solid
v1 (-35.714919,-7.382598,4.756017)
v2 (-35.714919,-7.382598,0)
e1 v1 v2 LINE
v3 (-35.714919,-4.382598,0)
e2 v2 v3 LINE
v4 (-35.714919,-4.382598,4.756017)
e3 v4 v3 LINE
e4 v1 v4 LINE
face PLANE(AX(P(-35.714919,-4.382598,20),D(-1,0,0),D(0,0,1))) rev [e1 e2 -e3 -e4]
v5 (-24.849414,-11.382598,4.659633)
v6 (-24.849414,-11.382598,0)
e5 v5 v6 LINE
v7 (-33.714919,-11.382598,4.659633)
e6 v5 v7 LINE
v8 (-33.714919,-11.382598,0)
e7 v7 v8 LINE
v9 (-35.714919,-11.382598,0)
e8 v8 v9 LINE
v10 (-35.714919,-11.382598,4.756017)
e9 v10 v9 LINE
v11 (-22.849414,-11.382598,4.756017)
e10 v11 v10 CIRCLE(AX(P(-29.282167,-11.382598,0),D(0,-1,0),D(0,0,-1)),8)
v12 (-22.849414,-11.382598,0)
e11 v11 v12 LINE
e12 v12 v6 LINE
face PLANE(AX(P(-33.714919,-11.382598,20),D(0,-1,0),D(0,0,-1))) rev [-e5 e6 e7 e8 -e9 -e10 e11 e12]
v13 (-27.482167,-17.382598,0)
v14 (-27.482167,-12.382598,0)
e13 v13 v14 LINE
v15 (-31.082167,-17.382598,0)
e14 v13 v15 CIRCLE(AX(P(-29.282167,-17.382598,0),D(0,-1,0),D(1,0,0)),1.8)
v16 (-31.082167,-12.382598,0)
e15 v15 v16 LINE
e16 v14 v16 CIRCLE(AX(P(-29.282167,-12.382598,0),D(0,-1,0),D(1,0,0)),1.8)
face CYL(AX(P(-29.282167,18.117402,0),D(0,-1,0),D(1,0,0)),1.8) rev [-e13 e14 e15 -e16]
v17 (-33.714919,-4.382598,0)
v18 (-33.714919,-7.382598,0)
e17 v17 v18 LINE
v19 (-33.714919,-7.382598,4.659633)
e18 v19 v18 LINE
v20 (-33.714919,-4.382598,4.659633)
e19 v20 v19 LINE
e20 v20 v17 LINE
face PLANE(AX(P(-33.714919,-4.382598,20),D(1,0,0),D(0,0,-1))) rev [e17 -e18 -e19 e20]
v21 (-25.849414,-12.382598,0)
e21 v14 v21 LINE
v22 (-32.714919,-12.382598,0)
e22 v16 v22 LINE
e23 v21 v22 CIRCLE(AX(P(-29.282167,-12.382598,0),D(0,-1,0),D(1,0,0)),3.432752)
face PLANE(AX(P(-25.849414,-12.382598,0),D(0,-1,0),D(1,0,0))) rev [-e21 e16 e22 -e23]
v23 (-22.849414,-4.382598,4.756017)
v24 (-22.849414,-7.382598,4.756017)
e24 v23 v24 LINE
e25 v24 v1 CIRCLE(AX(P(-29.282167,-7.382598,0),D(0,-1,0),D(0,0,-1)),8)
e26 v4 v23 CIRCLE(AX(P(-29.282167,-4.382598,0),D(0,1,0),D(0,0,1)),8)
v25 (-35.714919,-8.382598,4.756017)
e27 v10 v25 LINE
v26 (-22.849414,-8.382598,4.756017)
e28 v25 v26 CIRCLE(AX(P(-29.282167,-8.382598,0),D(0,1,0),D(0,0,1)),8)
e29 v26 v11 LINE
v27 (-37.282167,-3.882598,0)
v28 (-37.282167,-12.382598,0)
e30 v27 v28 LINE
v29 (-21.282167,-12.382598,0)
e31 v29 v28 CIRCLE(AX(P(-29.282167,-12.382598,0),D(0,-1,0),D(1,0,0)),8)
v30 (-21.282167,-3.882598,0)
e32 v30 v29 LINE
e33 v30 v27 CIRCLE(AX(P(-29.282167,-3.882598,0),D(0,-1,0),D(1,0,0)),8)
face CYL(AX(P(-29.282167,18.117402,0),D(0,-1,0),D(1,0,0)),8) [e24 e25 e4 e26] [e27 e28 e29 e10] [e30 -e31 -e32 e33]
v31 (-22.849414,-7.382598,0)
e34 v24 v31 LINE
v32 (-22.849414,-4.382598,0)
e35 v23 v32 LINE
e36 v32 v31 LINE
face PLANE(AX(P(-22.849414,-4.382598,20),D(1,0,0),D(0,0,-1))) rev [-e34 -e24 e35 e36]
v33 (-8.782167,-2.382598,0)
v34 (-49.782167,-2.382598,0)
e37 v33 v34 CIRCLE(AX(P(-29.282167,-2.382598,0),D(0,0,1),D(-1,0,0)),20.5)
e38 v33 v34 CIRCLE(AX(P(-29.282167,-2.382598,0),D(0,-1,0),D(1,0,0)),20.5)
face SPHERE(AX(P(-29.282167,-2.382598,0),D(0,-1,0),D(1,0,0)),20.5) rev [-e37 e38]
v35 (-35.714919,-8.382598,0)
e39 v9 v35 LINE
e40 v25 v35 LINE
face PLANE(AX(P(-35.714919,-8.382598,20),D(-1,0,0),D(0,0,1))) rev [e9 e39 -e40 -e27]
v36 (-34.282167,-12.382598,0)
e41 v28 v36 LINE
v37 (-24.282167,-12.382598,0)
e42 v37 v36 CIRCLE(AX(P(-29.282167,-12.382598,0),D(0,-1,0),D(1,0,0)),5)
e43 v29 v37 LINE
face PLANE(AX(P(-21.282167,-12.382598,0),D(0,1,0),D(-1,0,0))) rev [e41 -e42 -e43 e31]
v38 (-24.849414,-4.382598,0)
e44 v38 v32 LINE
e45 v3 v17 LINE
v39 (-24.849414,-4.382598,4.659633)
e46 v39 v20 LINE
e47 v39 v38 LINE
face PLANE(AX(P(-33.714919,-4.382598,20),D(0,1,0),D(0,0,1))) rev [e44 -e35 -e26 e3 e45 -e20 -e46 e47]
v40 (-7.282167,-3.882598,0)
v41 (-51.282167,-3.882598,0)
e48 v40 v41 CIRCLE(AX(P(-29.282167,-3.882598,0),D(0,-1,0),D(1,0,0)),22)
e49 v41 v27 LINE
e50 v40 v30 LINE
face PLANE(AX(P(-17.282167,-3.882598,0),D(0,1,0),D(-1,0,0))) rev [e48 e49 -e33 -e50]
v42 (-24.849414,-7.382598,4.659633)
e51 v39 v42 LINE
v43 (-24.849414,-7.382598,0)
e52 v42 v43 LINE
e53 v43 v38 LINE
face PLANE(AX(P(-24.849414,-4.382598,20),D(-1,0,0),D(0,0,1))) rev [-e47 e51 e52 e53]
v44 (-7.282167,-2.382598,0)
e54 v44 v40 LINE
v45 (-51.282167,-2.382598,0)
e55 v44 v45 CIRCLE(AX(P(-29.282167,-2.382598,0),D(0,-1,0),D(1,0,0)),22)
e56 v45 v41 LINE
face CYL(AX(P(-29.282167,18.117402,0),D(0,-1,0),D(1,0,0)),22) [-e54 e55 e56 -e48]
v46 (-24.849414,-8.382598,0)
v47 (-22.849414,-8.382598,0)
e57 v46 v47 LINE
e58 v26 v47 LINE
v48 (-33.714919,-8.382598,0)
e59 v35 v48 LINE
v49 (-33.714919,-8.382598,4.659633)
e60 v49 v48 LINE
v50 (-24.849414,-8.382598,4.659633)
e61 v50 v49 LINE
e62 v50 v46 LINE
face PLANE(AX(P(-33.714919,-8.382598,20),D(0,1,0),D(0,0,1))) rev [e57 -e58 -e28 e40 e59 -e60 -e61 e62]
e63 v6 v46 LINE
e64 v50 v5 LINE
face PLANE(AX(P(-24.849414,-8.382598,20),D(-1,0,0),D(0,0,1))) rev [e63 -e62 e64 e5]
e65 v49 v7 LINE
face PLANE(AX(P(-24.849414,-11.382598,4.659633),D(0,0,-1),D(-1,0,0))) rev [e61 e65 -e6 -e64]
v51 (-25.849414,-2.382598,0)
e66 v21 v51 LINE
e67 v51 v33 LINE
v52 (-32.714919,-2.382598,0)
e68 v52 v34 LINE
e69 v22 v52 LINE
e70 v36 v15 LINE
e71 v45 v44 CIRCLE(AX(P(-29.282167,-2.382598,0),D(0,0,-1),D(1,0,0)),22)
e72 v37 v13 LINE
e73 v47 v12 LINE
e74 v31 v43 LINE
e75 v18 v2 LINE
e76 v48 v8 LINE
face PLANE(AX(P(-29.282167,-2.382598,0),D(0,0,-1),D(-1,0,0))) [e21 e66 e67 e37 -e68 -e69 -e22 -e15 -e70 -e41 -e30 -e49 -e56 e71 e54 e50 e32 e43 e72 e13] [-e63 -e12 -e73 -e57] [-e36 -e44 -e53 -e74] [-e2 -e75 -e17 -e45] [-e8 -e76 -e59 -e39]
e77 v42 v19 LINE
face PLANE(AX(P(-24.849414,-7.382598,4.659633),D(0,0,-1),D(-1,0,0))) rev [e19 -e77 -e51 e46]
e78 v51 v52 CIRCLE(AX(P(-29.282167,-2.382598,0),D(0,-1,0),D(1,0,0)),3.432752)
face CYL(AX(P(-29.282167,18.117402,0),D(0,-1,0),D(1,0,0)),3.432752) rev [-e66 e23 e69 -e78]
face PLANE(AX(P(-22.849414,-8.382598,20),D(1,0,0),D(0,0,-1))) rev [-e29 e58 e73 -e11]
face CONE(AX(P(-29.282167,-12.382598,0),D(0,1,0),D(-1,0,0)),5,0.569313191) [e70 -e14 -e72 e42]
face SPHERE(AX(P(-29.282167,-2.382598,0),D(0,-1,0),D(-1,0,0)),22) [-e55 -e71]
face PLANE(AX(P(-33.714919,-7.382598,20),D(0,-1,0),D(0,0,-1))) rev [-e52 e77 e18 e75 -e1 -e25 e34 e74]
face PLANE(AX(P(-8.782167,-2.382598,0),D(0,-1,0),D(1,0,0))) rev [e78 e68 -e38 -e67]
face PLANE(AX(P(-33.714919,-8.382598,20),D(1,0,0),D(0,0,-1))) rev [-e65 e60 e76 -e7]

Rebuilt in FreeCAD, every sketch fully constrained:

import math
import FreeCAD as App
import Part
import Sketcher

V = App.Vector


def add_polygon(sketch, points):
    """Adds a closed chain of lines whose ends are joined by coincident constraints."""
    first, n = sketch.GeometryCount, len(points)
    for a, b in zip(points, points[1:] + points[:1]):
        sketch.addGeometry(Part.LineSegment(App.Vector(*a, 0), App.Vector(*b, 0)), False)
    for i in range(n):
        sketch.addConstraint(Sketcher.Constraint("Coincident", first + i, 2, first + (i + 1) % n, 1))

doc = App.newDocument("Part")
params = doc.addObject("Spreadsheet::Sheet", "Params")
for row, (alias, value) in enumerate([
    ("sketch1_radius", "22 mm"),
    ("sketch1_radius2", "20.5 mm"),
    ("sketch1_width", "14 mm"),
    ("sketch1_width2", "3 mm"),
    ("sketch1_height", "5 mm"),
    ("revolution_angle", "180 deg"),
    ("sketch2_width", "2 mm"),
    ("sketch2_height", "3 mm"),
    ("pocket1_length", "20 mm"),
    ("sketch3_width", "3 mm"),
    ("sketch3_height", "5 mm"),
    ("pocket2_length", "8.865505 mm"),
], start=1):
    params.set(f"A{row}", alias)
    params.set(f"B{row}", "=" + value)
    params.setAlias(f"B{row}", alias)

body = doc.addObject("PartDesign::Body", "Body")

sketch1 = body.newObject("Sketcher::SketchObject", "Sketch")
sketch1.AttachmentSupport = (doc.getObject("XY_Plane"), [""])
sketch1.MapMode = "FlatFace"
sketch1.addGeometry([
    Part.LineSegment(V(-32.714919, -2.382598, 0), V(-49.782167, -2.382598, 0)),
    Part.ArcOfCircle(Part.Circle(V(-29.282167, -2.382598, 0), V(0, 0, 1), 20.5), math.radians(90), math.radians(180)),
    Part.LineSegment(V(-29.282167, 18.117402, 0), V(-29.282167, 19.617402, 0)),
    Part.ArcOfCircle(Part.Circle(V(-29.282167, -2.382598, 0), V(0, 0, 1), 22), math.radians(90), math.radians(180)),
    Part.LineSegment(V(-51.282167, -2.382598, 0), V(-51.282167, -3.882598, 0)),
    Part.LineSegment(V(-51.282167, -3.882598, 0), V(-37.282167, -3.882598, 0)),
    Part.LineSegment(V(-37.282167, -3.882598, 0), V(-37.282167, -12.382598, 0)),
    Part.LineSegment(V(-37.282167, -12.382598, 0), V(-34.282167, -12.382598, 0)),
    Part.LineSegment(V(-34.282167, -12.382598, 0), V(-31.082167, -17.382598, 0)),
    Part.LineSegment(V(-31.082167, -17.382598, 0), V(-31.082167, -12.382598, 0)),
    Part.LineSegment(V(-31.082167, -12.382598, 0), V(-32.714919, -12.382598, 0)),
    Part.LineSegment(V(-32.714919, -12.382598, 0), V(-32.714919, -2.382598, 0)),
], False)
sketch1.addGeometry(Part.LineSegment(V(-29.282167, -17.382598, 0), V(-29.282167, 19.617402, 0)), True)
sketch1.addConstraint([
    Sketcher.Constraint("Coincident", 0, 2, 1, 2),
    Sketcher.Constraint("Coincident", 1, 1, 2, 1),
    Sketcher.Constraint("Coincident", 2, 2, 3, 1),
    Sketcher.Constraint("Tangent", 3, 2, 4, 1),
    Sketcher.Constraint("Coincident", 4, 2, 5, 1),
    Sketcher.Constraint("Coincident", 5, 2, 6, 1),
    Sketcher.Constraint("Coincident", 6, 2, 7, 1),
    Sketcher.Constraint("Coincident", 7, 2, 8, 1),
    Sketcher.Constraint("Coincident", 8, 2, 9, 1),
    Sketcher.Constraint("Coincident", 9, 2, 10, 1),
    Sketcher.Constraint("Coincident", 10, 2, 11, 1),
    Sketcher.Constraint("Coincident", 11, 2, 0, 1),
    Sketcher.Constraint("Horizontal", 0),
    Sketcher.Constraint("Vertical", 2),
    Sketcher.Constraint("Vertical", 4),
    Sketcher.Constraint("Horizontal", 5),
    Sketcher.Constraint("Vertical", 6),
    Sketcher.Constraint("Horizontal", 7),
    Sketcher.Constraint("Vertical", 9),
    Sketcher.Constraint("Horizontal", 10),
    Sketcher.Constraint("Vertical", 11),
    Sketcher.Constraint("Vertical", 12),
    Sketcher.Constraint("Coincident", 3, 3, 1, 3),
    Sketcher.Constraint("Coincident", 12, 2, 2, 2),
    Sketcher.Constraint("Horizontal", 3, 3, 0, 2),
    Sketcher.Constraint("Horizontal", 7, 2, 9, 2),
    Sketcher.Constraint("Horizontal", 8, 2, 12, 1),
    Sketcher.Constraint("Vertical", 3, 3, 1, 1),
    Sketcher.Constraint("Equal", 2, 4),
    Sketcher.Constraint("Radius", 3, 22.0),
    Sketcher.Constraint("Radius", 1, 20.5),
    Sketcher.Constraint("DistanceX", 5, 1, 5, 2, 14.0),
    Sketcher.Constraint("DistanceX", 7, 1, 7, 2, 3.0),
    Sketcher.Constraint("DistanceY", 9, 1, 9, 2, 5.0),
    Sketcher.Constraint("DistanceY", 11, 1, 11, 2, 10.0),
    Sketcher.Constraint("DistanceX", 7, 2, 8, 2, 3.2),
    Sketcher.Constraint("DistanceX", 0, 2, 0, 1, 17.067248),
    Sketcher.Constraint("DistanceX", 10, 2, -1, 1, 32.714919),
    Sketcher.Constraint("DistanceY", 1, 3, -1, 1, 2.382598),
])
sketch1.setExpression("Constraints[29]", "Params.sketch1_radius")
sketch1.setExpression("Constraints[30]", "Params.sketch1_radius2")
sketch1.setExpression("Constraints[31]", "Params.sketch1_width")
sketch1.setExpression("Constraints[32]", "Params.sketch1_width2")
sketch1.setExpression("Constraints[33]", "Params.sketch1_height")
revolution = body.newObject("PartDesign::Revolution", "Revolution")
revolution.Profile = sketch1
revolution.ReferenceAxis = (sketch1, ["Axis0"])
revolution.setExpression("Angle", "Params.revolution_angle")

sketch2 = body.newObject("Sketcher::SketchObject", "Sketch001")
sketch2.AttachmentSupport = (doc.getObject("XY_Plane"), [""])
sketch2.MapMode = "FlatFace"
add_polygon(sketch2, [(-33.714919, -8.382598), (-33.714919, -11.382598), (-35.714919, -11.382598), (-35.714919, -8.382598)])
add_polygon(sketch2, [(-33.714919, -4.382598), (-33.714919, -7.382598), (-35.714919, -7.382598), (-35.714919, -4.382598)])
add_polygon(sketch2, [(-22.849414, -8.382598), (-22.849414, -11.382598), (-24.849414, -11.382598), (-24.849414, -8.382598)])
add_polygon(sketch2, [(-22.849414, -4.382598), (-22.849414, -7.382598), (-24.849414, -7.382598), (-24.849414, -4.382598)])
sketch2.addConstraint([
    Sketcher.Constraint("Vertical", 0),
    Sketcher.Constraint("Horizontal", 1),
    Sketcher.Constraint("Vertical", 2),
    Sketcher.Constraint("Horizontal", 3),
    Sketcher.Constraint("Vertical", 4),
    Sketcher.Constraint("Horizontal", 5),
    Sketcher.Constraint("Vertical", 6),
    Sketcher.Constraint("Horizontal", 7),
    Sketcher.Constraint("Vertical", 8),
    Sketcher.Constraint("Horizontal", 9),
    Sketcher.Constraint("Vertical", 10),
    Sketcher.Constraint("Horizontal", 11),
    Sketcher.Constraint("Vertical", 12),
    Sketcher.Constraint("Horizontal", 13),
    Sketcher.Constraint("Vertical", 14),
    Sketcher.Constraint("Horizontal", 15),
    Sketcher.Constraint("Horizontal", 1, 2, 8, 2),
    Sketcher.Constraint("Horizontal", 3, 2, 10, 2),
    Sketcher.Constraint("Horizontal", 5, 2, 12, 2),
    Sketcher.Constraint("Horizontal", 7, 2, 14, 2),
    Sketcher.Constraint("Vertical", 3, 2, 4, 2),
    Sketcher.Constraint("Vertical", 2, 2, 5, 2),
    Sketcher.Constraint("Vertical", 11, 2, 12, 2),
    Sketcher.Constraint("Vertical", 10, 2, 13, 2),
    Sketcher.Constraint("Equal", 7, 9),
    Sketcher.Constraint("Equal", 2, 4),
    Sketcher.Constraint("DistanceX", 1, 2, 1, 1, 2.0),
    Sketcher.Constraint("DistanceY", 0, 2, 0, 1, 3.0),
    Sketcher.Constraint("DistanceY", 3, 2, 4, 2, 1.0),
    Sketcher.Constraint("DistanceX", 0, 2, -1, 1, 33.714919),
    Sketcher.Constraint("DistanceY", 0, 2, -1, 1, 11.382598),
    Sketcher.Constraint("DistanceX", 8, 2, -1, 1, 22.849414),
])
sketch2.setExpression("Constraints[42]", "Params.sketch2_width")
sketch2.setExpression("Constraints[43]", "Params.sketch2_height")
pocket1 = body.newObject("PartDesign::Pocket", "Pocket")
pocket1.Profile = sketch2
pocket1.setExpression("Length", "Params.pocket1_length")
pocket1.Reversed = True

sketch3 = body.newObject("Sketcher::SketchObject", "Sketch002")
sketch3.AttachmentSupport = (doc.getObject("YZ_Plane"), [""])
sketch3.MapMode = "FlatFace"
sketch3.AttachmentOffset = App.Placement(V(0, 0, -33.714919), App.Rotation())
add_polygon(sketch3, [(-7.382598, 4.659633), (-7.382598, 9.659633), (-4.382598, 9.659633), (-4.382598, 4.659633)])
add_polygon(sketch3, [(-11.382598, 4.659633), (-11.382598, 9.659633), (-8.382598, 9.659633), (-8.382598, 4.659633)])
sketch3.addConstraint([
    Sketcher.Constraint("Vertical", 0),
    Sketcher.Constraint("Horizontal", 1),
    Sketcher.Constraint("Vertical", 2),
    Sketcher.Constraint("Horizontal", 3),
    Sketcher.Constraint("Vertical", 4),
    Sketcher.Constraint("Horizontal", 5),
    Sketcher.Constraint("Vertical", 6),
    Sketcher.Constraint("Horizontal", 7),
    Sketcher.Constraint("Horizontal", 1, 2, 4, 2),
    Sketcher.Constraint("Horizontal", 3, 2, 6, 2),
    Sketcher.Constraint("Equal", 3, 5),
    Sketcher.Constraint("DistanceX", 1, 1, 1, 2, 3.0),
    Sketcher.Constraint("DistanceY", 0, 1, 0, 2, 5.0),
    Sketcher.Constraint("DistanceX", 4, 2, 0, 2, 4.0),
    Sketcher.Constraint("DistanceX", 0, 2, -1, 1, 7.382598),
    Sketcher.Constraint("DistanceY", -1, 1, 0, 2, 9.659633),
])
sketch3.setExpression("Constraints[19]", "Params.sketch3_width")
sketch3.setExpression("Constraints[20]", "Params.sketch3_height")
pocket2 = body.newObject("PartDesign::Pocket", "Pocket001")
pocket2.Profile = sketch3
pocket2.setExpression("Length", "Params.pocket2_length")
pocket2.Reversed = True

doc.recompute()
